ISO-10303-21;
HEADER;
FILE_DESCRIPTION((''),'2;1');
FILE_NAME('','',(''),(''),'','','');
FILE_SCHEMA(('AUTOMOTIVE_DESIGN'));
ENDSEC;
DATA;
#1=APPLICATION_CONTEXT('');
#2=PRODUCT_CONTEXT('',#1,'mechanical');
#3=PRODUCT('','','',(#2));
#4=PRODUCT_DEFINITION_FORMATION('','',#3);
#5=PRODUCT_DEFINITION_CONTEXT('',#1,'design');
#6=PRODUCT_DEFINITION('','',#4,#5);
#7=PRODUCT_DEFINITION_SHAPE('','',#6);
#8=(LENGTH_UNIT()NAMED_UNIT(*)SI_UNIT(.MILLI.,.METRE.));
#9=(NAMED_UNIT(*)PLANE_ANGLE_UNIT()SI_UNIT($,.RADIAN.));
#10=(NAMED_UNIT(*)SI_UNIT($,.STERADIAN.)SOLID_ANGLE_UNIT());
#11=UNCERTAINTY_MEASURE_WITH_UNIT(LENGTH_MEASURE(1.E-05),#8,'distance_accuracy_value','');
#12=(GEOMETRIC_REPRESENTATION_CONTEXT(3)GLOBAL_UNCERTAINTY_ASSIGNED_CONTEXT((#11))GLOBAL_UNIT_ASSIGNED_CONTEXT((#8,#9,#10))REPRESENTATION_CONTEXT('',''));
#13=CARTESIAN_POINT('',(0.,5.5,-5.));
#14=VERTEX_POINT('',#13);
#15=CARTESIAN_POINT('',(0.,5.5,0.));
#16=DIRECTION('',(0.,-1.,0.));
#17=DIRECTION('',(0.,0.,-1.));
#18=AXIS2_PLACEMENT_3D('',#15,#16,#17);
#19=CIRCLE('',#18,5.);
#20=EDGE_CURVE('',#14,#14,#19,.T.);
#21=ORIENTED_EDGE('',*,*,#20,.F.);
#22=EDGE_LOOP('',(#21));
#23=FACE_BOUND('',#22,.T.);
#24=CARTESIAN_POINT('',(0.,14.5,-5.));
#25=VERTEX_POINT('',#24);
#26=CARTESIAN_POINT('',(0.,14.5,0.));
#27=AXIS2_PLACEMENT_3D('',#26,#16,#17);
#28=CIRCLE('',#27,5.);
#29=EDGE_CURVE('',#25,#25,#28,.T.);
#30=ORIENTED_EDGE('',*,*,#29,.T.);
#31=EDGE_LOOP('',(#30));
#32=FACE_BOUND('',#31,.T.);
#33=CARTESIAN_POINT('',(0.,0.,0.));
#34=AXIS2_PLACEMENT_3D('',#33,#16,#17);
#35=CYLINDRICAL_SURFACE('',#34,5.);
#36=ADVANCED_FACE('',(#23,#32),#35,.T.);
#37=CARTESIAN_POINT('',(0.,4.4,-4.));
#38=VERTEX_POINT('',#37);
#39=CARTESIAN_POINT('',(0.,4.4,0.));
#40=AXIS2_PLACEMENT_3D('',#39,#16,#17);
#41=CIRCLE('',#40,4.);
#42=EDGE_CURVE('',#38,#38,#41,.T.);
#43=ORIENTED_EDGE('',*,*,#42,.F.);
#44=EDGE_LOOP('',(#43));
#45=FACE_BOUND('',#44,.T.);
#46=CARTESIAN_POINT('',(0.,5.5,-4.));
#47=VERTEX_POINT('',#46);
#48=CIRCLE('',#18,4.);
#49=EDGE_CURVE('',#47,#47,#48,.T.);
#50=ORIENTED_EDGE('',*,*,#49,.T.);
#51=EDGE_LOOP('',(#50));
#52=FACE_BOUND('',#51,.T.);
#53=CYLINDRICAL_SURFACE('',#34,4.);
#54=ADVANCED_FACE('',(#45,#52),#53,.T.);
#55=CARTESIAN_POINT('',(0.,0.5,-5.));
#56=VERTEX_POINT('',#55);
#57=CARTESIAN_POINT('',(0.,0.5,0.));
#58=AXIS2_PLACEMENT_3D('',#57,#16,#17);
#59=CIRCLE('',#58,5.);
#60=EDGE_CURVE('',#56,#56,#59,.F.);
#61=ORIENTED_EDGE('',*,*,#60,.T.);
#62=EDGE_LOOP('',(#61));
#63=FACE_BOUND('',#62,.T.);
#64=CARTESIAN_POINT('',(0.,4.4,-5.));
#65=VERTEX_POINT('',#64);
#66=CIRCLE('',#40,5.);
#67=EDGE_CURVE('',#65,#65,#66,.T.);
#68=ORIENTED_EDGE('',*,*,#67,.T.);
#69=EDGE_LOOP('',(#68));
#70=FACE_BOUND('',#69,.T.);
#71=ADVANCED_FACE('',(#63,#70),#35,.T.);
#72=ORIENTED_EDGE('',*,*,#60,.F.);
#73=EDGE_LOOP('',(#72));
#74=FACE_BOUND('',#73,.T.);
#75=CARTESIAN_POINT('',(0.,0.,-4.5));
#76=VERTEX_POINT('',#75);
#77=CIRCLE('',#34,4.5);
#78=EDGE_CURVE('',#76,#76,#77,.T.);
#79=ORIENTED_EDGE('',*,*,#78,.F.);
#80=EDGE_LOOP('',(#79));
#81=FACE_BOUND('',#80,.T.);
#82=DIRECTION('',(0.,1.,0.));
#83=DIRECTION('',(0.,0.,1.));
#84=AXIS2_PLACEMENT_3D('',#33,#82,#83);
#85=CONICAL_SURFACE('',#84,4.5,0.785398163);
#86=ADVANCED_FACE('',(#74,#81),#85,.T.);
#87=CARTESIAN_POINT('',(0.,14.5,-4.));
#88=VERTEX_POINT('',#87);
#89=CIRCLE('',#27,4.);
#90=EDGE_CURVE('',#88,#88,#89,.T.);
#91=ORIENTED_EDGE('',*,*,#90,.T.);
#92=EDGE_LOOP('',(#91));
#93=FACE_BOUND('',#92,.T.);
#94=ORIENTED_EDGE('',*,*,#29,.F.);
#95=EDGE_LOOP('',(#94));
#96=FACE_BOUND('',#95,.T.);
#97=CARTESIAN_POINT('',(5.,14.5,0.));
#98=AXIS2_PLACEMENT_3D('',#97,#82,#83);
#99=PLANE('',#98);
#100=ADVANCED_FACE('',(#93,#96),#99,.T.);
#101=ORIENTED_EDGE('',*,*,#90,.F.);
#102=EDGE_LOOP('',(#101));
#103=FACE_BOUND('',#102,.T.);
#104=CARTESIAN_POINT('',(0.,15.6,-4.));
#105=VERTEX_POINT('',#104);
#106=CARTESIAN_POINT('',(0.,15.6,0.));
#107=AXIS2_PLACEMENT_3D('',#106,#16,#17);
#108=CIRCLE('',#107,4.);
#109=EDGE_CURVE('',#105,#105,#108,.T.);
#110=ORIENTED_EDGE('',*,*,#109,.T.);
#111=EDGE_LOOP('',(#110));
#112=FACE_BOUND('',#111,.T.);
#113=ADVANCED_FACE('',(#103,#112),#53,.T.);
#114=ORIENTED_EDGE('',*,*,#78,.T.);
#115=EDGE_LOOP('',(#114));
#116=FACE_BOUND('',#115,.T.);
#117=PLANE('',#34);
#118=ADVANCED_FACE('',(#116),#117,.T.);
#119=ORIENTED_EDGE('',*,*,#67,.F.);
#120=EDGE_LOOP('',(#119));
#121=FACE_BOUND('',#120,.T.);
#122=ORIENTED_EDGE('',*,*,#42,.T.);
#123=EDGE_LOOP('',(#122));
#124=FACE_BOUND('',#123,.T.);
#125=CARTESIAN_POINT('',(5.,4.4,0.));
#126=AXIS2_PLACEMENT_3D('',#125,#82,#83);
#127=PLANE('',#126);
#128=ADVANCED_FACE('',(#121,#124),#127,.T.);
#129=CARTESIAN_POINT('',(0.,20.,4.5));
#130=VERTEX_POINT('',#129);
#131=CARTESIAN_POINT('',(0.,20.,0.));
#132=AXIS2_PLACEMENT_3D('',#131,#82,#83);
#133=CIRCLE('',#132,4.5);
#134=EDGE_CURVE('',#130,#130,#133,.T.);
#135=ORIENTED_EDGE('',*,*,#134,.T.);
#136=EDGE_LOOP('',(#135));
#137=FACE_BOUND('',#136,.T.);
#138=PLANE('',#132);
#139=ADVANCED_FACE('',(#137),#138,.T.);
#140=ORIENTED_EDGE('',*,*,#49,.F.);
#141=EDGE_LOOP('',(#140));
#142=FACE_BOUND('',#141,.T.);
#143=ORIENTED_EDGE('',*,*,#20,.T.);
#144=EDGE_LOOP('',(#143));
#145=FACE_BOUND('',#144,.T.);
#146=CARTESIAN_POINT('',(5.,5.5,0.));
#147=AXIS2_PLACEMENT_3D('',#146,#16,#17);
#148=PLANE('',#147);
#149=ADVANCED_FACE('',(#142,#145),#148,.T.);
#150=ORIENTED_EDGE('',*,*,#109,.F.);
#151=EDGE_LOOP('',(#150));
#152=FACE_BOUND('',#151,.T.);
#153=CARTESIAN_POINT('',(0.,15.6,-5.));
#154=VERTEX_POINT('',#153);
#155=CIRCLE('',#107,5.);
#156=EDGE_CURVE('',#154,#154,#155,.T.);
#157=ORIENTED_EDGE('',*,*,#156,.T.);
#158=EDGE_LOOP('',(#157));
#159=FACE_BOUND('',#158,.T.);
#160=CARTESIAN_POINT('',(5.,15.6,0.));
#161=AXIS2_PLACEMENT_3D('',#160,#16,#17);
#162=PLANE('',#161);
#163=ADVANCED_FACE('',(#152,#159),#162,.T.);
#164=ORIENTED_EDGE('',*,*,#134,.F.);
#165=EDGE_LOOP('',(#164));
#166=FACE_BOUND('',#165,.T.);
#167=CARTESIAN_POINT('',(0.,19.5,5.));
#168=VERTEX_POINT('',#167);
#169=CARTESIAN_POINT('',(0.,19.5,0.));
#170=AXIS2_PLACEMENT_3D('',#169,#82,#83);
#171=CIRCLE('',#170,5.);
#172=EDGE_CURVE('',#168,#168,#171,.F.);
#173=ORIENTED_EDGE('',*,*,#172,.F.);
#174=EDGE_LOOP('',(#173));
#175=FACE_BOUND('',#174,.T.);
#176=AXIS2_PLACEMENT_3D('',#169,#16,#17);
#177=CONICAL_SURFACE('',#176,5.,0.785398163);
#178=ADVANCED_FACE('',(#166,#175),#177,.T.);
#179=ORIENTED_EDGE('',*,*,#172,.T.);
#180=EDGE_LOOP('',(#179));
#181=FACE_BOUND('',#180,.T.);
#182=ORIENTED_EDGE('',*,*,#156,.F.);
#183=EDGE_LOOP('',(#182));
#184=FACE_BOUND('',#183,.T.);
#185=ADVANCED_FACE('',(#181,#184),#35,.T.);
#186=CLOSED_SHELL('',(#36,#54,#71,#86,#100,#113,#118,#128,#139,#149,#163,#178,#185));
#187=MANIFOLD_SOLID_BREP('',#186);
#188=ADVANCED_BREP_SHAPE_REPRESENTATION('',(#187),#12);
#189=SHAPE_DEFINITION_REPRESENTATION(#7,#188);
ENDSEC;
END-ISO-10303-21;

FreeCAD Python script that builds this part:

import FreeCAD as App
import Part
import Sketcher
Q = App.Units.Quantity


def edges_at(feature, points):
    """Names of the edges that pass closest to the given points."""
    edges = feature.Shape.Edges
    near = lambda p: min(range(len(edges)), key=lambda i: edges[i].distToShape(Part.Vertex(*p))[0])
    return sorted({f"Edge{near(p) + 1}" for p in points})

doc = App.newDocument("Part")
body = doc.addObject("PartDesign::Body", "Body")

# Sketch on XY plane
sketch1 = doc.addObject("Sketcher::SketchObject", "Sketch")
body.addObject(sketch1)
sketch1.AttachmentSupport = (doc.XY_Plane, [""])
sketch1.MapMode = "FlatFace"
sketch1.addGeometry([
    Part.LineSegment(App.Vector(5, 5.5, 0), App.Vector(5, 14.5, 0)),  # 0
    Part.LineSegment(App.Vector(5, 14.5, 0), App.Vector(4, 14.5, 0)),  # 1
    Part.LineSegment(App.Vector(4, 14.5, 0), App.Vector(4, 15.6, 0)),  # 2
    Part.LineSegment(App.Vector(4, 15.6, 0), App.Vector(5, 15.6, 0)),  # 3
    Part.LineSegment(App.Vector(5, 15.6, 0), App.Vector(5, 20, 0)),  # 4
    Part.LineSegment(App.Vector(5, 20, 0), App.Vector(0, 20, 0)),  # 5
    Part.LineSegment(App.Vector(0, 20, 0), App.Vector(0, 0, 0)),  # 6
    Part.LineSegment(App.Vector(0, 0, 0), App.Vector(5, 0, 0)),  # 7
    Part.LineSegment(App.Vector(5, 0, 0), App.Vector(5, 4.4, 0)),  # 8
    Part.LineSegment(App.Vector(5, 4.4, 0), App.Vector(4, 4.4, 0)),  # 9
    Part.LineSegment(App.Vector(4, 4.4, 0), App.Vector(4, 5.5, 0)),  # 10
    Part.LineSegment(App.Vector(4, 5.5, 0), App.Vector(5, 5.5, 0)),  # 11
], False)
sketch1.addConstraint([
    Sketcher.Constraint("Coincident", 0, 2, 1, 1),
    Sketcher.Constraint("Coincident", 1, 2, 2, 1),
    Sketcher.Constraint("Coincident", 2, 2, 3, 1),
    Sketcher.Constraint("Coincident", 3, 2, 4, 1),
    Sketcher.Constraint("Coincident", 4, 2, 5, 1),
    Sketcher.Constraint("Coincident", 5, 2, 6, 1),
    Sketcher.Constraint("Coincident", 6, 2, 7, 1),
    Sketcher.Constraint("Coincident", 7, 2, 8, 1),
    Sketcher.Constraint("Coincident", 8, 2, 9, 1),
    Sketcher.Constraint("Coincident", 9, 2, 10, 1),
    Sketcher.Constraint("Coincident", 10, 2, 11, 1),
    Sketcher.Constraint("Coincident", 11, 2, 0, 1),
    Sketcher.Constraint("Vertical", 0),
    Sketcher.Constraint("Horizontal", 1),
    Sketcher.Constraint("Vertical", 2),
    Sketcher.Constraint("Horizontal", 3),
    Sketcher.Constraint("Vertical", 4),
    Sketcher.Constraint("Horizontal", 5),
    Sketcher.Constraint("Vertical", 6),
    Sketcher.Constraint("Horizontal", 7),
    Sketcher.Constraint("Vertical", 8),
    Sketcher.Constraint("Horizontal", 9),
    Sketcher.Constraint("Vertical", 10),
    Sketcher.Constraint("Horizontal", 11),
    Sketcher.Constraint("Coincident", 6, 2, -1, 1),
    Sketcher.Constraint("Vertical", 0, 2, 3, 2),
    Sketcher.Constraint("Vertical", 4, 2, 7, 2),
    Sketcher.Constraint("Vertical", 2, 2, 9, 2),
    Sketcher.Constraint("Equal", 4, 8),
    Sketcher.Constraint("Equal", 2, 10),
    Sketcher.Constraint("DistanceX", 1, 2, 1, 1, Q("1 mm")),
    Sketcher.Constraint("DistanceX", 5, 2, 5, 1, Q("5 mm")),
    Sketcher.Constraint("DistanceY", 0, 1, 0, 2, Q("9 mm")),
    Sketcher.Constraint("DistanceY", 6, 2, 6, 1, Q("20 mm")),
    Sketcher.Constraint("DistanceY", 2, 1, 2, 2, Q("1.1 mm")),
])
revolution = doc.addObject("PartDesign::Revolution", "Revolution")
body.addObject(revolution)
revolution.Profile = sketch1
revolution.ReferenceAxis = (sketch1, ["V_Axis"])
revolution.Angle = 360
doc.recompute()

chamfer = doc.addObject("PartDesign::Chamfer", "Chamfer")
body.addObject(chamfer)
chamfer.Base = (revolution, edges_at(revolution, [(0, 20, 5), (0, 0, 5)]))
chamfer.Size = 0.5

doc.recompute()
